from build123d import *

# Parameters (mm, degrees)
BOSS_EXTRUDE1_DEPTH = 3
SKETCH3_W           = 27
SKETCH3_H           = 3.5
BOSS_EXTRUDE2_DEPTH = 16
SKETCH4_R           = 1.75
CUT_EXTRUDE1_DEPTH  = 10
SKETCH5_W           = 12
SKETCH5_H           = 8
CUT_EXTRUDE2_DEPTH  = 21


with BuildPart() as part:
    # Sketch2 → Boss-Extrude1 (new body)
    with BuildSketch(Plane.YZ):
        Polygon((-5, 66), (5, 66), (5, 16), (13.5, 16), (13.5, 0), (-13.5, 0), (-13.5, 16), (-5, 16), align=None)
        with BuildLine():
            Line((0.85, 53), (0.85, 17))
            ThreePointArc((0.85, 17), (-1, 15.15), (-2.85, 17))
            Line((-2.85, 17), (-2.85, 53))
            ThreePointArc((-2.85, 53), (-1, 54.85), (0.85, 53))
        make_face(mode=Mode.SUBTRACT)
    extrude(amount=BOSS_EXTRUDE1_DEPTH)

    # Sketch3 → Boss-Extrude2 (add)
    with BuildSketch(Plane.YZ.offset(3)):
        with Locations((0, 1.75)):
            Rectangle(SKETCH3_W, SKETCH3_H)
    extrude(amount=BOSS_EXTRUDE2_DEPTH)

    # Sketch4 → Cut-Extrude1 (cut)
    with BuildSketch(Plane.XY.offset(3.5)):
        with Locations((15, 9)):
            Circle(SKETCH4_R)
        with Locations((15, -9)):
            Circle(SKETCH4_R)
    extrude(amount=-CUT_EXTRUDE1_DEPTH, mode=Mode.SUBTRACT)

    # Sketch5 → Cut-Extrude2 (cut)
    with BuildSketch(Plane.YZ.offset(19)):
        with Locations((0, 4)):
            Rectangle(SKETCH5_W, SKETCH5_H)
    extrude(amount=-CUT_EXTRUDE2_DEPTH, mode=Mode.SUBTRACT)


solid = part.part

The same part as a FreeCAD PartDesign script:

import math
import FreeCAD as App
import Part
import Sketcher
from FreeCAD import Vector

doc = App.newDocument("Part")
params = doc.addObject("Spreadsheet::Sheet", "Params")
for row, (alias, value) in enumerate([
    ("sketch1_width", "10 mm"),
    ("sketch1_width2", "27 mm"),
    ("sketch1_height", "50 mm"),
    ("sketch1_height2", "16 mm"),
    ("sketch1_height3", "36 mm"),
    ("pad1_length", "3 mm"),
    ("sketch2_width", "27 mm"),
    ("sketch2_height", "3.5 mm"),
    ("pad2_length", "16 mm"),
    ("sketch3_diameter", "3.5 mm"),
    ("pocket1_length", "10 mm"),
    ("sketch4_width", "12 mm"),
    ("sketch4_height", "8 mm"),
    ("pocket2_length", "21 mm"),
], start=1):
    params.set(f"A{row}", alias)
    params.set(f"B{row}", "=" + value)
    params.setAlias(f"B{row}", alias)

body = doc.addObject("PartDesign::Body", "Body")

# Sketch on YZ plane
sketch1 = body.newObject("Sketcher::SketchObject", "Sketch")
sketch1.AttachmentSupport = (doc.getObject("YZ_Plane"), [""])
sketch1.MapMode = "FlatFace"
sketch1.addGeometry(Part.LineSegment(Vector(5, 66, 0), Vector(-5, 66, 0)), False)
sketch1.addGeometry(Part.LineSegment(Vector(-5, 66, 0), Vector(-5, 16, 0)), False)
sketch1.addGeometry(Part.LineSegment(Vector(-5, 16, 0), Vector(-13.5, 16, 0)), False)
sketch1.addGeometry(Part.LineSegment(Vector(-13.5, 16, 0), Vector(-13.5, 0, 0)), False)
sketch1.addGeometry(Part.LineSegment(Vector(-13.5, 0, 0), Vector(13.5, 0, 0)), False)
sketch1.addGeometry(Part.LineSegment(Vector(13.5, 0, 0), Vector(13.5, 16, 0)), False)
sketch1.addGeometry(Part.LineSegment(Vector(13.5, 16, 0), Vector(5, 16, 0)), False)
sketch1.addGeometry(Part.LineSegment(Vector(5, 16, 0), Vector(5, 66, 0)), False)
sketch1.addGeometry(Part.LineSegment(Vector(0.8, 53, 0), Vector(0.8, 17, 0)), False)
sketch1.addGeometry(Part.ArcOfCircle(Part.Circle(Vector(-1, 17, 0), Vector(0, 0, 1), 1.9), math.radians(180), math.radians(360)), False)
sketch1.addGeometry(Part.LineSegment(Vector(-2.9, 17, 0), Vector(-2.9, 53, 0)), False)
sketch1.addGeometry(Part.ArcOfCircle(Part.Circle(Vector(-1, 53, 0), Vector(0, 0, 1), 1.9), math.radians(0), math.radians(180)), False)
sketch1.addConstraint(Sketcher.Constraint("Coincident", 0, 2, 1, 1))
sketch1.addConstraint(Sketcher.Constraint("Coincident", 1, 2, 2, 1))
sketch1.addConstraint(Sketcher.Constraint("Coincident", 2, 2, 3, 1))
sketch1.addConstraint(Sketcher.Constraint("Coincident", 3, 2, 4, 1))
sketch1.addConstraint(Sketcher.Constraint("Coincident", 4, 2, 5, 1))
sketch1.addConstraint(Sketcher.Constraint("Coincident", 5, 2, 6, 1))
sketch1.addConstraint(Sketcher.Constraint("Coincident", 6, 2, 7, 1))
sketch1.addConstraint(Sketcher.Constraint("Coincident", 7, 2, 0, 1))
sketch1.addConstraint(Sketcher.Constraint("Tangent", 8, 2, 9, 2))
sketch1.addConstraint(Sketcher.Constraint("Tangent", 9, 1, 10, 1))
sketch1.addConstraint(Sketcher.Constraint("Tangent", 10, 2, 11, 2))
sketch1.addConstraint(Sketcher.Constraint("Tangent", 11, 1, 8, 1))
sketch1.addConstraint(Sketcher.Constraint("Horizontal", 0))
sketch1.addConstraint(Sketcher.Constraint("Vertical", 1))
sketch1.addConstraint(Sketcher.Constraint("Horizontal", 2))
sketch1.addConstraint(Sketcher.Constraint("Vertical", 3))
sketch1.addConstraint(Sketcher.Constraint("Horizontal", 4))
sketch1.addConstraint(Sketcher.Constraint("Vertical", 5))
sketch1.addConstraint(Sketcher.Constraint("Horizontal", 6))
sketch1.addConstraint(Sketcher.Constraint("Vertical", 7))
sketch1.addConstraint(Sketcher.Constraint("Vertical", 8))
sketch1.addConstraint(Sketcher.Constraint("Vertical", 10))
sketch1.addConstraint(Sketcher.Constraint("Symmetric", 3, 2, 4, 2, -1, 1))
sketch1.addConstraint(Sketcher.Constraint("Symmetric", 1, 2, 6, 2, -2))
sketch1.addConstraint(Sketcher.Constraint("DistanceX", 0, 2, 0, 1, 10.0))
sketch1.addConstraint(Sketcher.Constraint("DistanceX", 4, 1, 4, 2, 27.0))
sketch1.addConstraint(Sketcher.Constraint("DistanceY", 1, 2, 1, 1, 50.0))
sketch1.addConstraint(Sketcher.Constraint("DistanceY", 3, 2, 3, 1, 16.0))
sketch1.addConstraint(Sketcher.Constraint("DistanceY", 8, 2, 8, 1, 36.0))
sketch1.addConstraint(Sketcher.Constraint("Radius", 9, 1.85))
sketch1.addConstraint(Sketcher.Constraint("DistanceX", 9, 3, -1, 1, 1.0))
sketch1.addConstraint(Sketcher.Constraint("DistanceY", -1, 1, 9, 3, 17.0))
sketch1.setExpression("Constraints[24]", "Params.sketch1_width")
sketch1.setExpression("Constraints[25]", "Params.sketch1_width2")
sketch1.setExpression("Constraints[26]", "Params.sketch1_height")
sketch1.setExpression("Constraints[27]", "Params.sketch1_height2")
sketch1.setExpression("Constraints[28]", "Params.sketch1_height3")
pad1 = body.newObject("PartDesign::Pad", "Pad")
pad1.Profile = sketch1
pad1.setExpression("Length", "Params.pad1_length")

# Sketch on YZ plane
sketch2 = body.newObject("Sketcher::SketchObject", "Sketch001")
sketch2.AttachmentSupport = (doc.getObject("YZ_Plane"), [""])
sketch2.MapMode = "FlatFace"
sketch2.AttachmentOffset = App.Placement(Vector(0, 0, 3), App.Rotation())
sketch2.addGeometry(Part.LineSegment(Vector(-13.5, 3.5, 0), Vector(-13.5, 0, 0)), False)
sketch2.addGeometry(Part.LineSegment(Vector(-13.5, 0, 0), Vector(13.5, 0, 0)), False)
sketch2.addGeometry(Part.LineSegment(Vector(13.5, 0, 0), Vector(13.5, 3.5, 0)), False)
sketch2.addGeometry(Part.LineSegment(Vector(13.5, 3.5, 0), Vector(-13.5, 3.5, 0)), False)
sketch2.addConstraint(Sketcher.Constraint("Coincident", 0, 2, 1, 1))
sketch2.addConstraint(Sketcher.Constraint("Coincident", 1, 2, 2, 1))
sketch2.addConstraint(Sketcher.Constraint("Coincident", 2, 2, 3, 1))
sketch2.addConstraint(Sketcher.Constraint("Coincident", 3, 2, 0, 1))
sketch2.addConstraint(Sketcher.Constraint("Vertical", 0))
sketch2.addConstraint(Sketcher.Constraint("Horizontal", 1))
sketch2.addConstraint(Sketcher.Constraint("Vertical", 2))
sketch2.addConstraint(Sketcher.Constraint("Horizontal", 3))
sketch2.addConstraint(Sketcher.Constraint("Symmetric", 0, 2, 1, 2, -1, 1))
sketch2.addConstraint(Sketcher.Constraint("DistanceX", 1, 1, 1, 2, 27.0))
sketch2.addConstraint(Sketcher.Constraint("DistanceY", 0, 2, 0, 1, 3.5))
sketch2.setExpression("Constraints[9]", "Params.sketch2_width")
sketch2.setExpression("Constraints[10]", "Params.sketch2_height")
pad2 = body.newObject("PartDesign::Pad", "Pad001")
pad2.Profile = sketch2
pad2.setExpression("Length", "Params.pad2_length")

# Sketch on XY plane
sketch3 = body.newObject("Sketcher::SketchObject", "Sketch002")
sketch3.AttachmentSupport = (doc.getObject("XY_Plane"), [""])
sketch3.MapMode = "FlatFace"
sketch3.AttachmentOffset = App.Placement(Vector(0, 0, 3.5), App.Rotation())
sketch3.addGeometry(Part.Circle(Vector(15, 9, 0), Vector(0, 0, 1), 1.8), False)
sketch3.addGeometry(Part.Circle(Vector(15, -9, 0), Vector(0, 0, 1), 1.8), False)
sketch3.addConstraint(Sketcher.Constraint("Equal", 0, 1))
sketch3.addConstraint(Sketcher.Constraint("Symmetric", 0, 3, 1, 3, -1))
sketch3.addConstraint(Sketcher.Constraint("Diameter", 0, 3.5))
sketch3.addConstraint(Sketcher.Constraint("DistanceX", -1, 1, 0, 3, 15.0))
sketch3.addConstraint(Sketcher.Constraint("DistanceY", -1, 1, 0, 3, 9.0))
sketch3.setExpression("Constraints[2]", "Params.sketch3_diameter")
pocket1 = body.newObject("PartDesign::Pocket", "Pocket")
pocket1.Profile = sketch3
pocket1.setExpression("Length", "Params.pocket1_length")

# Sketch on YZ plane
sketch4 = body.newObject("Sketcher::SketchObject", "Sketch003")
sketch4.AttachmentSupport = (doc.getObject("YZ_Plane"), [""])
sketch4.MapMode = "FlatFace"
sketch4.AttachmentOffset = App.Placement(Vector(0, 0, 19), App.Rotation())
sketch4.addGeometry(Part.LineSegment(Vector(-6, 8, 0), Vector(-6, 0, 0)), False)
sketch4.addGeometry(Part.LineSegment(Vector(-6, 0, 0), Vector(6, 0, 0)), False)
sketch4.addGeometry(Part.LineSegment(Vector(6, 0, 0), Vector(6, 8, 0)), False)
sketch4.addGeometry(Part.LineSegment(Vector(6, 8, 0), Vector(-6, 8, 0)), False)
sketch4.addConstraint(Sketcher.Constraint("Coincident", 0, 2, 1, 1))
sketch4.addConstraint(Sketcher.Constraint("Coincident", 1, 2, 2, 1))
sketch4.addConstraint(Sketcher.Constraint("Coincident", 2, 2, 3, 1))
sketch4.addConstraint(Sketcher.Constraint("Coincident", 3, 2, 0, 1))
sketch4.addConstraint(Sketcher.Constraint("Vertical", 0))
sketch4.addConstraint(Sketcher.Constraint("Horizontal", 1))
sketch4.addConstraint(Sketcher.Constraint("Vertical", 2))
sketch4.addConstraint(Sketcher.Constraint("Horizontal", 3))
sketch4.addConstraint(Sketcher.Constraint("Symmetric", 0, 2, 1, 2, -1, 1))
sketch4.addConstraint(Sketcher.Constraint("DistanceX", 1, 1, 1, 2, 12.0))
sketch4.addConstraint(Sketcher.Constraint("DistanceY", 0, 2, 0, 1, 8.0))
sketch4.setExpression("Constraints[9]", "Params.sketch4_width")
sketch4.setExpression("Constraints[10]", "Params.sketch4_height")
pocket2 = body.newObject("PartDesign::Pocket", "Pocket001")
pocket2.Profile = sketch4
pocket2.setExpression("Length", "Params.pocket2_length")

doc.recompute()
